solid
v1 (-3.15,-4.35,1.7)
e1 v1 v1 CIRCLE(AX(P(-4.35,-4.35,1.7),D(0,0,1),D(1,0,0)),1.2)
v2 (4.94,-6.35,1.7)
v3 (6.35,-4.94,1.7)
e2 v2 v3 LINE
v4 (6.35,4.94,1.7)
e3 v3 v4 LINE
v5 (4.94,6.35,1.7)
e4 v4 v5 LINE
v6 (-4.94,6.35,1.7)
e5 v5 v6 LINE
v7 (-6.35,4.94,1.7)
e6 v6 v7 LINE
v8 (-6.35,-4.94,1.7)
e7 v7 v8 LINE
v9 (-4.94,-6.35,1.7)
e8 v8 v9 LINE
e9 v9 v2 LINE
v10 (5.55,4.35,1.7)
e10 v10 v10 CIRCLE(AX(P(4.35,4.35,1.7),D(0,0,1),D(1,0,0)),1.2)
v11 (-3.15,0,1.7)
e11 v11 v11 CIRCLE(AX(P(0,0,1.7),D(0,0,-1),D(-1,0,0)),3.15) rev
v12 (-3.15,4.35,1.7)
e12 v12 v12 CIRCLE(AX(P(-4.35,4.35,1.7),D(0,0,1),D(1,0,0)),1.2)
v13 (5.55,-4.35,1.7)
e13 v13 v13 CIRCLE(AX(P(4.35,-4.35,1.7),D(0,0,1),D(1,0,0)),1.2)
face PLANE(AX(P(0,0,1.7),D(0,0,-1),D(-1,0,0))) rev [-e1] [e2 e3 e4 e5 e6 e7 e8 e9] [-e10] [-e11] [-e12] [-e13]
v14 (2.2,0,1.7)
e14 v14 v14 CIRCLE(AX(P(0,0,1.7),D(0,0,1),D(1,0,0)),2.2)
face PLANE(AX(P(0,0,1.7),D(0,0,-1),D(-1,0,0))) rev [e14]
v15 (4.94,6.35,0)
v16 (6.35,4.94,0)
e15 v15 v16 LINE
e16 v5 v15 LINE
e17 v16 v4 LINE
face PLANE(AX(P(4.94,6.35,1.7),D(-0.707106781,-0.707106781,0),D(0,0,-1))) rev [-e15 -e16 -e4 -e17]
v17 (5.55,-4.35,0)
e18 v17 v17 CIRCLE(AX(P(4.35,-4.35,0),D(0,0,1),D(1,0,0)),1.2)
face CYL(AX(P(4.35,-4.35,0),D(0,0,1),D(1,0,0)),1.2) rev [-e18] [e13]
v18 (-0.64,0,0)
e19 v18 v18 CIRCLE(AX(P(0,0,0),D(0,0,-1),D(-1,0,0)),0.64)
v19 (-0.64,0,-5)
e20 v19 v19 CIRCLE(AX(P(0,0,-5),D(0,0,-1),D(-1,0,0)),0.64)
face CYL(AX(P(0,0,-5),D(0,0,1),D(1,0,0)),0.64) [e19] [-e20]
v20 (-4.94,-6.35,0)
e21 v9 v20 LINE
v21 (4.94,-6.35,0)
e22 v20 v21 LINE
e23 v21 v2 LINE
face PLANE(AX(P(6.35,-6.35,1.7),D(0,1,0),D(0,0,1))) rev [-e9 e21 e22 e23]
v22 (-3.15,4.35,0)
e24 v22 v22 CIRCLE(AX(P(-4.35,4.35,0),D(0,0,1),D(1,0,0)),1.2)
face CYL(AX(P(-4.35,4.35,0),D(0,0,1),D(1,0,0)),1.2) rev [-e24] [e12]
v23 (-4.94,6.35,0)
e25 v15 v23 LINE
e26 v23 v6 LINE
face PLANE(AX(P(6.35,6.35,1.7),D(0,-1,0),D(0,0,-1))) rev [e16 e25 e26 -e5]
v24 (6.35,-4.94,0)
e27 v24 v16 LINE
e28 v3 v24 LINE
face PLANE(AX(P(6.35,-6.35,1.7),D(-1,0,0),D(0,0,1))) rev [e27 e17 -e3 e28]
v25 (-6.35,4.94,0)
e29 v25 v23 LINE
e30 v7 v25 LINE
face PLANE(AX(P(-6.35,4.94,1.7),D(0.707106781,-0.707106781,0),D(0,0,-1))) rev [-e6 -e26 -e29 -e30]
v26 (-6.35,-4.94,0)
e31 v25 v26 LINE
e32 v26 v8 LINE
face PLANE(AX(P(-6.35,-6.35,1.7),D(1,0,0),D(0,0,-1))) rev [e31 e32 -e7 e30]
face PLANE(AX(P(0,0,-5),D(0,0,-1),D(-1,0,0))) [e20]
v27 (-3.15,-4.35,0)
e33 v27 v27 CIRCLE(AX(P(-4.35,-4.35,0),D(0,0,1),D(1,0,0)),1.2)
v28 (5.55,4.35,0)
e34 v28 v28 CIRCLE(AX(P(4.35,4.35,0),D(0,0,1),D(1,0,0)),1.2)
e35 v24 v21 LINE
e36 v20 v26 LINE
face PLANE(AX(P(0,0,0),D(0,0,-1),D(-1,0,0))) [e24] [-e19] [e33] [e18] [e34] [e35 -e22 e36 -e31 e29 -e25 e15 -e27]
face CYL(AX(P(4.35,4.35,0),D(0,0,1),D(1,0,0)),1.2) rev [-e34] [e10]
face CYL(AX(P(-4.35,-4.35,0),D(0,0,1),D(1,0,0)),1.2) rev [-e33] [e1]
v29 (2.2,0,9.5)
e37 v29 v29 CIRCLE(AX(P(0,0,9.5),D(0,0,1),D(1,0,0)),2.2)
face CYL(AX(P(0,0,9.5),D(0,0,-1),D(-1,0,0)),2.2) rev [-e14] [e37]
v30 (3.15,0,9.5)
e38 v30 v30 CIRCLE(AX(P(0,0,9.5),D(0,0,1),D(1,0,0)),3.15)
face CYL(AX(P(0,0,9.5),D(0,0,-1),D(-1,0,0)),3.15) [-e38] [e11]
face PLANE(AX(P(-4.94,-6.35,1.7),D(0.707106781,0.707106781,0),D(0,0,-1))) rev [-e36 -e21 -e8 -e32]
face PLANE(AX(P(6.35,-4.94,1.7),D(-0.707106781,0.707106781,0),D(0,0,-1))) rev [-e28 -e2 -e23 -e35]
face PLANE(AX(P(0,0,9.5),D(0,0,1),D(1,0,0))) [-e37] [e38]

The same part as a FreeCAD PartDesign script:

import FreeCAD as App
import Part
import Sketcher
from FreeCAD import Vector


def edges_at(feature, points):
    """Names of the edges that pass closest to the given points."""
    edges = feature.Shape.Edges
    near = lambda p: min(range(len(edges)), key=lambda i: edges[i].distToShape(Part.Vertex(*p))[0])
    return sorted({f"Edge{near(p) + 1}" for p in points})

doc = App.newDocument("Part")
body = doc.addObject("PartDesign::Body", "Body")

# Sketch on XY plane
sketch1 = body.newObject("Sketcher::SketchObject", "Sketch")
sketch1.AttachmentSupport = (doc.getObject("XY_Plane"), [""])
sketch1.MapMode = "FlatFace"
sketch1.addGeometry([
    Part.LineSegment(Vector(-6, -6, 0), Vector(6, -6, 0)),
    Part.LineSegment(Vector(6, -6, 0), Vector(6, 6, 0)),
    Part.LineSegment(Vector(6, 6, 0), Vector(-6, 6, 0)),
    Part.LineSegment(Vector(-6, 6, 0), Vector(-6, -6, 0)),
], False)
sketch1.addConstraint([
    Sketcher.Constraint("Coincident", 0, 2, 1, 1),
    Sketcher.Constraint("Coincident", 1, 2, 2, 1),
    Sketcher.Constraint("Coincident", 2, 2, 3, 1),
    Sketcher.Constraint("Coincident", 3, 2, 0, 1),
    Sketcher.Constraint("Horizontal", 0),
    Sketcher.Constraint("Vertical", 1),
    Sketcher.Constraint("Horizontal", 2),
    Sketcher.Constraint("Vertical", 3),
    Sketcher.Constraint("Symmetric", 0, 2, 2, 2, -1, 1),
    Sketcher.Constraint("Equal", 2, 1),
    Sketcher.Constraint("DistanceX", 0, 1, 0, 2, 12.7),
])
pad1 = body.newObject("PartDesign::Pad", "Pad")
pad1.Profile = sketch1
pad1.Length = 1.7
doc.recompute()

chamfer = body.newObject("PartDesign::Chamfer", "Chamfer")
chamfer.Base = (pad1, edges_at(pad1, [
    (6.35, 6.35, 0.85),
    (6.35, -6.35, 0.85),
    (-6.35, -6.35, 0.85),
    (-6.35, 6.35, 0.85),
]))
chamfer.Size = 1.41

# Sketch on XY plane
sketch2 = body.newObject("Sketcher::SketchObject", "Sketch001")
sketch2.AttachmentSupport = (doc.getObject("XY_Plane"), [""])
sketch2.MapMode = "FlatFace"
sketch2.AttachmentOffset = App.Placement(Vector(0, 0, 1.7), App.Rotation())
sketch2.addGeometry([
    Part.Circle(Vector(-4.3, 4.3, 0), Vector(0, 0, 1), 1.2),
    Part.Circle(Vector(-4.3, -4.3, 0), Vector(0, 0, 1), 1.2),
    Part.Circle(Vector(4.3, -4.3, 0), Vector(0, 0, 1), 1.2),
    Part.Circle(Vector(4.3, 4.3, 0), Vector(0, 0, 1), 1.2),
], False)
sketch2.addConstraint([
    Sketcher.Constraint("Equal", 0, 1),
    Sketcher.Constraint("Equal", 1, 2),
    Sketcher.Constraint("Equal", 2, 3),
    Sketcher.Constraint("Symmetric", 0, 3, 2, 3, -1, 1),
    Sketcher.Constraint("Symmetric", 1, 3, 3, 3, -1, 1),
    Sketcher.Constraint("Symmetric", 1, 3, 2, 3, -2),
    Sketcher.Constraint("Diameter", 0, 2.4),
    Sketcher.Constraint("DistanceY", 1, 3, 0, 3, 8.7),
    Sketcher.Constraint("DistanceX", 1, 3, 2, 3, 8.7),
])
pocket1 = body.newObject("PartDesign::Pocket", "Pocket")
pocket1.Profile = sketch2
pocket1.Type = "ThroughAll"

# Sketch on XY plane
sketch3 = body.newObject("Sketcher::SketchObject", "Sketch002")
sketch3.AttachmentSupport = (doc.getObject("XY_Plane"), [""])
sketch3.MapMode = "FlatFace"
sketch3.AttachmentOffset = App.Placement(Vector(0, 0, 1.7), App.Rotation())
sketch3.addGeometry([
    Part.Circle(Vector(0, 0, 0), Vector(0, 0, 1), 3.1),
    Part.Circle(Vector(0, 0, 0), Vector(0, 0, 1), 2.2),
], False)
sketch3.addConstraint([
    Sketcher.Constraint("Coincident", 0, 3, -1, 1),
    Sketcher.Constraint("Coincident", 1, 3, -1, 1),
    Sketcher.Constraint("Diameter", 0, 6.3),
    Sketcher.Constraint("Diameter", 1, 4.4),
])
pad2 = body.newObject("PartDesign::Pad", "Pad001")
pad2.Profile = sketch3
pad2.Length = 7.8

# Sketch on XY plane
sketch4 = body.newObject("Sketcher::SketchObject", "Sketch003")
sketch4.AttachmentSupport = (doc.getObject("XY_Plane"), [""])
sketch4.MapMode = "FlatFace"
sketch4.addGeometry(Part.Circle(Vector(0, 0, 0), Vector(0, 0, 1), 0.6), False)
sketch4.addConstraint([
    Sketcher.Constraint("Coincident", 0, 3, -1, 1),
    Sketcher.Constraint("Diameter", 0, 1.28),
])
pad3 = body.newObject("PartDesign::Pad", "Pad002")
pad3.Profile = sketch4
pad3.Length = 5
pad3.Reversed = True

doc.recompute()
